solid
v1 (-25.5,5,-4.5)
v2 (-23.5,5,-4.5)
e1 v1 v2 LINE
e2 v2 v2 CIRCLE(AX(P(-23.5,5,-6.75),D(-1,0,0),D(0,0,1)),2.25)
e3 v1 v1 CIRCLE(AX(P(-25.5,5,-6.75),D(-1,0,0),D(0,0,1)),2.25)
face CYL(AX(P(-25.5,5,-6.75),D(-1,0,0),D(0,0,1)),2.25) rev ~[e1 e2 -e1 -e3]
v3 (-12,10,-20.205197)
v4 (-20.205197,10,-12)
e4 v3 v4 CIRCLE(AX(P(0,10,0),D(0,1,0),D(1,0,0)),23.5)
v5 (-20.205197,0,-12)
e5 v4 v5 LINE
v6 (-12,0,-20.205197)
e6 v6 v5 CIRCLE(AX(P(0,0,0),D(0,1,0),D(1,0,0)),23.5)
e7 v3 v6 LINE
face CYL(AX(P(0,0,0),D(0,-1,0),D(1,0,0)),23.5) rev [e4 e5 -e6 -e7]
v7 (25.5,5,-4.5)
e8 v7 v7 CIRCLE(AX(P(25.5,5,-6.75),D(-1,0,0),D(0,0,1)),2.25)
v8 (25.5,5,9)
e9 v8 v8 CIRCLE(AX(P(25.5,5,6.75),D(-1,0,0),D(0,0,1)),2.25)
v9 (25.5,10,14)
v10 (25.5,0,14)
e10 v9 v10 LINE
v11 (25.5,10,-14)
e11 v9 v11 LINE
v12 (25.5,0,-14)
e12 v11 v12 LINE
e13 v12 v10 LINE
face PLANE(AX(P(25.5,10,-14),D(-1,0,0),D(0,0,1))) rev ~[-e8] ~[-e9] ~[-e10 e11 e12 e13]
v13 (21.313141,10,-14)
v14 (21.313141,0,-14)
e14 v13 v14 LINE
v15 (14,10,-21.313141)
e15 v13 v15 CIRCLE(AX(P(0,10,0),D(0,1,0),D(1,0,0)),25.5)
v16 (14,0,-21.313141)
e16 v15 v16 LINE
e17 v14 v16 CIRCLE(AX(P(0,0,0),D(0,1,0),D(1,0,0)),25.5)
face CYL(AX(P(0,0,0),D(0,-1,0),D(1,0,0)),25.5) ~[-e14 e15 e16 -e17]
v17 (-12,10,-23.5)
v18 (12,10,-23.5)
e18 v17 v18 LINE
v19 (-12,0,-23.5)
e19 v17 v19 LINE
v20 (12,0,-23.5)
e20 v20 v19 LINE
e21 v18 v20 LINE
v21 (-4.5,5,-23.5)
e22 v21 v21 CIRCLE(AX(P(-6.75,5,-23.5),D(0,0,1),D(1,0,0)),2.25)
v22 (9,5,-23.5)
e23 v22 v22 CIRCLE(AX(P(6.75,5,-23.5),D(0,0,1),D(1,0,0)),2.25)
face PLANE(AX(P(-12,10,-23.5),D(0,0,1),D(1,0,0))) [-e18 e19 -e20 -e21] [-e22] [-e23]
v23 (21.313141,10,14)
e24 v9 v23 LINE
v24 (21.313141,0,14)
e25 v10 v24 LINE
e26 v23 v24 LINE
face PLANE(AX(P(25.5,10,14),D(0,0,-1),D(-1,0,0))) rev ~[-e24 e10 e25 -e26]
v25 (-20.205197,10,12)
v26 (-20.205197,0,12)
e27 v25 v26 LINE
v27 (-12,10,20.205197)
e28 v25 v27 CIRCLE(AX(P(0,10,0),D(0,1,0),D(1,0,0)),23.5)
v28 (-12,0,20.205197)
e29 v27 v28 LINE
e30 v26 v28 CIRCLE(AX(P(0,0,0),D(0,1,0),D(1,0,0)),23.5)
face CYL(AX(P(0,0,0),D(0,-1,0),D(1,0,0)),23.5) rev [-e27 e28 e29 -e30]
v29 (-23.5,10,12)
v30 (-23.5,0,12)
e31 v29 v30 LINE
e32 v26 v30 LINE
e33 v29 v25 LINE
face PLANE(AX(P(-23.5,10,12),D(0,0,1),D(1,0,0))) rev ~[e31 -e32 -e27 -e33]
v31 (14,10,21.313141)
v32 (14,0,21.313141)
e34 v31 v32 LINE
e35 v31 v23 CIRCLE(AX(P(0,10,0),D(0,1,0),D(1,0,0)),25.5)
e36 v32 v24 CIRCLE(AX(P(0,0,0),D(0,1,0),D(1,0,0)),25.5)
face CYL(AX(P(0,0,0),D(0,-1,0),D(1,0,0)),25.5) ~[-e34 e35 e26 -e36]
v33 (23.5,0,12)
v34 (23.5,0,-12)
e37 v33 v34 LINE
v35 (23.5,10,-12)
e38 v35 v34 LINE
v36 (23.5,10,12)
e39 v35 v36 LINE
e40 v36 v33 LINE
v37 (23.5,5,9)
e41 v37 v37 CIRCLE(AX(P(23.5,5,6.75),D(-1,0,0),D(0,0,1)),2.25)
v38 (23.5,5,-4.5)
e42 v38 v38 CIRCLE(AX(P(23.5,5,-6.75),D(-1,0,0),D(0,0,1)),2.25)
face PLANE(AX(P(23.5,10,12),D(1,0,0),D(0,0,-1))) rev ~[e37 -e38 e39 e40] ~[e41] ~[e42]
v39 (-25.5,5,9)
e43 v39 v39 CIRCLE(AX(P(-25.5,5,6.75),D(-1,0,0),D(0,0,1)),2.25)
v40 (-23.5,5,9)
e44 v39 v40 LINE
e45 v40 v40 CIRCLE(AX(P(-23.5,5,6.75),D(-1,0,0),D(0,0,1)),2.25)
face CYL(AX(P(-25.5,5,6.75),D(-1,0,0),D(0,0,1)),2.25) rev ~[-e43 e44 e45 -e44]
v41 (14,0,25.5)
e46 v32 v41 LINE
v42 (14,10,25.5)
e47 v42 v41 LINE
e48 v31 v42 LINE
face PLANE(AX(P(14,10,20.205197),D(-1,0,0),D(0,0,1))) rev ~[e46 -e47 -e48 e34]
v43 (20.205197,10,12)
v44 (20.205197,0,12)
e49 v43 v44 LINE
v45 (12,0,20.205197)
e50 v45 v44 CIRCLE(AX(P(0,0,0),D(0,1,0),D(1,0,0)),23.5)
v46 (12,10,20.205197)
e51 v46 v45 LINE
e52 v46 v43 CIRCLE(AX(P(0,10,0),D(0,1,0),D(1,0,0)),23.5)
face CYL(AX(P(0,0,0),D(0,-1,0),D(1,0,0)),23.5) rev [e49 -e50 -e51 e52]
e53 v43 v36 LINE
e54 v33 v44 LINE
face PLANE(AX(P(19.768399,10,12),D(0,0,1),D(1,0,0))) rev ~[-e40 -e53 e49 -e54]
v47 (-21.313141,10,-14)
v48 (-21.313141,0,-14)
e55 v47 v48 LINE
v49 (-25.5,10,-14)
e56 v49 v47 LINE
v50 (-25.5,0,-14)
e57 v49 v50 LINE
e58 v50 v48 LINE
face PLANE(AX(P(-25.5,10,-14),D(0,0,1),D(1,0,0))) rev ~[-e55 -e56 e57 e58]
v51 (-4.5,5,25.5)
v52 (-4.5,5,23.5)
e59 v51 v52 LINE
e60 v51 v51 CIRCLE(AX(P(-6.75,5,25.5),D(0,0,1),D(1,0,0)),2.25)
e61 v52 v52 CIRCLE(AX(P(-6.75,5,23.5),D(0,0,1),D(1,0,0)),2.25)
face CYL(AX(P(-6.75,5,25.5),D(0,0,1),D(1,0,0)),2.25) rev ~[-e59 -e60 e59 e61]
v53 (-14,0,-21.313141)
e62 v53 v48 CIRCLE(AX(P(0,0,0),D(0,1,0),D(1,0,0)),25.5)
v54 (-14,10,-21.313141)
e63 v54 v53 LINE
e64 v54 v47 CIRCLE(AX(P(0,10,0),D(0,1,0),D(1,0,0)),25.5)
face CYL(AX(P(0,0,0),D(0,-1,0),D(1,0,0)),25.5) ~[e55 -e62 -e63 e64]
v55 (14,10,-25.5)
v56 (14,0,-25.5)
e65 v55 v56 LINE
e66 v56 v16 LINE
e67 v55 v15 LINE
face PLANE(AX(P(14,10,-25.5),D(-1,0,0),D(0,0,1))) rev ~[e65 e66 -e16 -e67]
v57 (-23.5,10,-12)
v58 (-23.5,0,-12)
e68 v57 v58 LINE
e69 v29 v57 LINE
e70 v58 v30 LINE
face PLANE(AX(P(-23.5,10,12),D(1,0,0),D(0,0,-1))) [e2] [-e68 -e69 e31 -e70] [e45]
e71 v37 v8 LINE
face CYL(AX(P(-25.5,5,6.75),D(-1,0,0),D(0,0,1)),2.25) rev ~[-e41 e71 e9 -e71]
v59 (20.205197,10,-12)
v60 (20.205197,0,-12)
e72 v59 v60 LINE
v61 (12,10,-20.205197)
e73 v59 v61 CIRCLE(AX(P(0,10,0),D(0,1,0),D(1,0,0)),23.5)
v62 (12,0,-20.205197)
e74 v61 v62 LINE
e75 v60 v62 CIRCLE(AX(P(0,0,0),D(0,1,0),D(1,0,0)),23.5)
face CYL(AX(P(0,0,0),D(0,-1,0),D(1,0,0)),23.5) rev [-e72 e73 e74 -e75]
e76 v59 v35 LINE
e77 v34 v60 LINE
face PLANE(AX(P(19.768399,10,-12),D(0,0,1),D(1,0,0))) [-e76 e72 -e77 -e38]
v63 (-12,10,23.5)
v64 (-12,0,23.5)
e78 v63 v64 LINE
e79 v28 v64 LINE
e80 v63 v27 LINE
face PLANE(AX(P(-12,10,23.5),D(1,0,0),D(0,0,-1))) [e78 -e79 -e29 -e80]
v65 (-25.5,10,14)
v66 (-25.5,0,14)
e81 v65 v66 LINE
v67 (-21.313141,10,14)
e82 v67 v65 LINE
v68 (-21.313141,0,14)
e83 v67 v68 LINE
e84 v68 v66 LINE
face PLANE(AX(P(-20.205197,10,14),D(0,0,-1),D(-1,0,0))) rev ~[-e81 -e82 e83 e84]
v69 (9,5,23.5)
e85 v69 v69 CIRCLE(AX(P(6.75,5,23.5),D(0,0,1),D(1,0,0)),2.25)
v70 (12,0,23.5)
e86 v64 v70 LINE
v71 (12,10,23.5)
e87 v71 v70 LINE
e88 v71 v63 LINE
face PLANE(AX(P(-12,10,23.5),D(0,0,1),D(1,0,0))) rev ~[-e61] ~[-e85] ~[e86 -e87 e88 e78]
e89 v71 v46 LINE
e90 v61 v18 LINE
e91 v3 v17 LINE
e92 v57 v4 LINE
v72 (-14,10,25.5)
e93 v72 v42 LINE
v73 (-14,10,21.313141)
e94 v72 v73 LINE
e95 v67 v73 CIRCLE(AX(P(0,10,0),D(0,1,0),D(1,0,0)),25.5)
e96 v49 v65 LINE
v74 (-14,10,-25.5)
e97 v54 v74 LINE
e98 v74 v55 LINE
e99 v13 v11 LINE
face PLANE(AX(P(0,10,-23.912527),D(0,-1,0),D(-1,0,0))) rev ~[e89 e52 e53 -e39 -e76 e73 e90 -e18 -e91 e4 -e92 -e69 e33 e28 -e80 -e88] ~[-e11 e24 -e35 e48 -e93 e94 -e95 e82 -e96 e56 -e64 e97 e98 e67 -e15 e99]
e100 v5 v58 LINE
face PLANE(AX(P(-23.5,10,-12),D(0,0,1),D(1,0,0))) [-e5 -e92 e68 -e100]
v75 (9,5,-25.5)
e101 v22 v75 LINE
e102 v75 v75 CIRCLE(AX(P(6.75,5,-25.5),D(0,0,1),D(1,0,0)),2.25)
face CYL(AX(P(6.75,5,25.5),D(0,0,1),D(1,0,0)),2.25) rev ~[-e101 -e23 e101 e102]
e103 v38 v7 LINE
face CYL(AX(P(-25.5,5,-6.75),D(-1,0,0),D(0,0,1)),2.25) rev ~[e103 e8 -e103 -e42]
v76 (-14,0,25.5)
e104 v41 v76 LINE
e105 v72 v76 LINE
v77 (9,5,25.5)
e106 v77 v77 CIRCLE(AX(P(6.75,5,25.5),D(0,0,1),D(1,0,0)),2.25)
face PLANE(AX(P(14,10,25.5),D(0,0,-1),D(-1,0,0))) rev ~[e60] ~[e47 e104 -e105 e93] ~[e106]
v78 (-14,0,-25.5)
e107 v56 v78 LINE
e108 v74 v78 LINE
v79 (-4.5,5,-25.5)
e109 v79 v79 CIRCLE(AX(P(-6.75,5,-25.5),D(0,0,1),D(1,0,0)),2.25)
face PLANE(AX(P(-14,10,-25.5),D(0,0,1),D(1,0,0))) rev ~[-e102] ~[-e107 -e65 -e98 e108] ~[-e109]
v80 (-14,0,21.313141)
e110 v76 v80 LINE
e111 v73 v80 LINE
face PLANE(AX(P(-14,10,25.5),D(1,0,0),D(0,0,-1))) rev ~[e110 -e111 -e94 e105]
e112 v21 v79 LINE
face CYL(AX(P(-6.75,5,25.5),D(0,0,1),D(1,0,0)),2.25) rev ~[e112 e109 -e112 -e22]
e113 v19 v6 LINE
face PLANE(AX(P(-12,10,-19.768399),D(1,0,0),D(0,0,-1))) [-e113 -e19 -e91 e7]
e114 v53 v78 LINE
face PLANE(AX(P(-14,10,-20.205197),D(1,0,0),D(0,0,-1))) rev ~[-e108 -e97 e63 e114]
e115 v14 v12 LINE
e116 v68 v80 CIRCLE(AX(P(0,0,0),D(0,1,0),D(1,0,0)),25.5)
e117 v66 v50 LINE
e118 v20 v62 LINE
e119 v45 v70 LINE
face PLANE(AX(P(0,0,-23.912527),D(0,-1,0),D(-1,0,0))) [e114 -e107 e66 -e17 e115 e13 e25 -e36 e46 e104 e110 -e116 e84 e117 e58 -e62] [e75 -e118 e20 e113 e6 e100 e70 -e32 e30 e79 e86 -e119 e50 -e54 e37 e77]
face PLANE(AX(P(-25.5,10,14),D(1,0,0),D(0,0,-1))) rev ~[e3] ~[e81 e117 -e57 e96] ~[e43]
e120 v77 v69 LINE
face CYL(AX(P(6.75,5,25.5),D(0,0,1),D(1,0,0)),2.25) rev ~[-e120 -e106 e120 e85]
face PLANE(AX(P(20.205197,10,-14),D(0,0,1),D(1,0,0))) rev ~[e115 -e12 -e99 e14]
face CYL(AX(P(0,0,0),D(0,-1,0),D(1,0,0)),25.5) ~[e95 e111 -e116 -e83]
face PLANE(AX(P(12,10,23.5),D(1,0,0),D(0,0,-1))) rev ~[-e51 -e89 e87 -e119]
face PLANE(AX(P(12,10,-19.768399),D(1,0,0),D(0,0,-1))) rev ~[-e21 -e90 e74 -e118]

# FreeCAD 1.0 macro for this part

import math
import FreeCAD as App
import Part
import Sketcher
from FreeCAD import Vector


def add_polygon(sketch, points):
    """Adds a closed chain of lines whose ends are joined by coincident constraints."""
    first, n = sketch.GeometryCount, len(points)
    for a, b in zip(points, points[1:] + points[:1]):
        sketch.addGeometry(Part.LineSegment(App.Vector(*a, 0), App.Vector(*b, 0)), False)
    for i in range(n):
        sketch.addConstraint(Sketcher.Constraint("Coincident", first + i, 2, first + (i + 1) % n, 1))

doc = App.newDocument("Part")
params = doc.addObject("Spreadsheet::Sheet", "Params")
for row, (alias, value) in enumerate([
    ("sketch1_diameter", "51 mm"),
    ("sketch1_diameter2", "47 mm"),
    ("pad1_length", "10 mm"),
    ("sketch2_width", "28 mm"),
    ("pad2_length", "10 mm"),
    ("sketch3_diameter", "4.5 mm"),
    ("sketch4_diameter", "4.5 mm"),
    ("sketch5_width", "24 mm"),
], start=1):
    params.set(f"A{row}", alias)
    params.set(f"B{row}", "=" + value)
    params.setAlias(f"B{row}", alias)

body = doc.addObject("PartDesign::Body", "Body")

# Sketch on XZ plane
sketch1 = doc.addObject("Sketcher::SketchObject", "Sketch")
body.addObject(sketch1)
sketch1.AttachmentSupport = (doc.XZ_Plane, [""])
sketch1.MapMode = "FlatFace"
sketch1.addGeometry(Part.Circle(Vector(0, 0, 0), Vector(0, 0, 1), 25.5), False)
sketch1.addGeometry(Part.Circle(Vector(0, 0, 0), Vector(0, 0, 1), 23.5), False)
sketch1.addConstraint(Sketcher.Constraint("Coincident", 0, 3, -1, 1))
sketch1.addConstraint(Sketcher.Constraint("Coincident", 1, 3, -1, 1))
sketch1.addConstraint(Sketcher.Constraint("Diameter", 0, 51.0))
sketch1.addConstraint(Sketcher.Constraint("Diameter", 1, 47.0))
sketch1.setExpression("Constraints[2]", "Params.sketch1_diameter")
sketch1.setExpression("Constraints[3]", "Params.sketch1_diameter2")
pad1 = doc.addObject("PartDesign::Pad", "Pad")
body.addObject(pad1)
pad1.Profile = sketch1
pad1.setExpression("Length", "Params.pad1_length")
pad1.Reversed = True

# Sketch on XZ plane
sketch2 = doc.addObject("Sketcher::SketchObject", "Sketch001")
body.addObject(sketch2)
sketch2.AttachmentSupport = (doc.XZ_Plane, [""])
sketch2.MapMode = "FlatFace"
sketch2.AttachmentOffset = App.Placement(Vector(0, 0, -10), App.Rotation())
sketch2.addGeometry(Part.LineSegment(Vector(14, -25.5, 0), Vector(-14, -25.5, 0)), False)
sketch2.addGeometry(Part.LineSegment(Vector(-14, -25.5, 0), Vector(-14, -20.205197, 0)), False)
sketch2.addGeometry(Part.ArcOfCircle(Part.Circle(Vector(0, 0, 0), Vector(0, 0, 1), 24.581497), math.radians(-124.717741), math.radians(-55.282259)), False)
sketch2.addGeometry(Part.LineSegment(Vector(14, -20.205197, 0), Vector(14, -25.5, 0)), False)
sketch2.addGeometry(Part.LineSegment(Vector(25.5, -14, 0), Vector(20.205197, -14, 0)), False)
sketch2.addGeometry(Part.ArcOfCircle(Part.Circle(Vector(0, 0, 0), Vector(0, 0, 1), 24.581497), math.radians(-34.717741), math.radians(34.717741)), False)
sketch2.addGeometry(Part.LineSegment(Vector(20.205197, 14, 0), Vector(25.5, 14, 0)), False)
sketch2.addGeometry(Part.LineSegment(Vector(25.5, 14, 0), Vector(25.5, -14, 0)), False)
sketch2.addGeometry(Part.LineSegment(Vector(14, 25.5, 0), Vector(14, 20.205197, 0)), False)
sketch2.addGeometry(Part.ArcOfCircle(Part.Circle(Vector(0, 0, 0), Vector(0, 0, 1), 24.581497), math.radians(55.282259), math.radians(124.717741)), False)
sketch2.addGeometry(Part.LineSegment(Vector(-14, 20.205197, 0), Vector(-14, 25.5, 0)), False)
sketch2.addGeometry(Part.LineSegment(Vector(-14, 25.5, 0), Vector(14, 25.5, 0)), False)
sketch2.addGeometry(Part.LineSegment(Vector(-25.5, 14, 0), Vector(-20.205197, 14, 0)), False)
sketch2.addGeometry(Part.ArcOfCircle(Part.Circle(Vector(0, 0, 0), Vector(0, 0, 1), 24.581497), math.radians(145.282259), math.radians(214.717741)), False)
sketch2.addGeometry(Part.LineSegment(Vector(-20.205197, -14, 0), Vector(-25.5, -14, 0)), False)
sketch2.addGeometry(Part.LineSegment(Vector(-25.5, -14, 0), Vector(-25.5, 14, 0)), False)
sketch2.addConstraint(Sketcher.Constraint("Coincident", 0, 2, 1, 1))
sketch2.addConstraint(Sketcher.Constraint("Coincident", 1, 2, 2, 1))
sketch2.addConstraint(Sketcher.Constraint("Coincident", 2, 2, 3, 1))
sketch2.addConstraint(Sketcher.Constraint("Coincident", 3, 2, 0, 1))
sketch2.addConstraint(Sketcher.Constraint("Coincident", 4, 2, 5, 1))
sketch2.addConstraint(Sketcher.Constraint("Coincident", 5, 2, 6, 1))
sketch2.addConstraint(Sketcher.Constraint("Coincident", 6, 2, 7, 1))
sketch2.addConstraint(Sketcher.Constraint("Coincident", 7, 2, 4, 1))
sketch2.addConstraint(Sketcher.Constraint("Coincident", 8, 2, 9, 1))
sketch2.addConstraint(Sketcher.Constraint("Coincident", 9, 2, 10, 1))
sketch2.addConstraint(Sketcher.Constraint("Coincident", 10, 2, 11, 1))
sketch2.addConstraint(Sketcher.Constraint("Coincident", 11, 2, 8, 1))
sketch2.addConstraint(Sketcher.Constraint("Coincident", 12, 2, 13, 1))
sketch2.addConstraint(Sketcher.Constraint("Coincident", 13, 2, 14, 1))
sketch2.addConstraint(Sketcher.Constraint("Coincident", 14, 2, 15, 1))
sketch2.addConstraint(Sketcher.Constraint("Coincident", 15, 2, 12, 1))
sketch2.addConstraint(Sketcher.Constraint("Horizontal", 0))
sketch2.addConstraint(Sketcher.Constraint("Vertical", 1))
sketch2.addConstraint(Sketcher.Constraint("Vertical", 3))
sketch2.addConstraint(Sketcher.Constraint("Horizontal", 4))
sketch2.addConstraint(Sketcher.Constraint("Horizontal", 6))
sketch2.addConstraint(Sketcher.Constraint("Vertical", 7))
sketch2.addConstraint(Sketcher.Constraint("Vertical", 8))
sketch2.addConstraint(Sketcher.Constraint("Vertical", 10))
sketch2.addConstraint(Sketcher.Constraint("Horizontal", 11))
sketch2.addConstraint(Sketcher.Constraint("Horizontal", 12))
sketch2.addConstraint(Sketcher.Constraint("Horizontal", 14))
sketch2.addConstraint(Sketcher.Constraint("Vertical", 15))
sketch2.addConstraint(Sketcher.Constraint("Coincident", 2, 3, -1, 1))
sketch2.addConstraint(Sketcher.Constraint("Coincident", 5, 3, -1, 1))
sketch2.addConstraint(Sketcher.Constraint("Coincident", 9, 3, -1, 1))
sketch2.addConstraint(Sketcher.Constraint("Coincident", 13, 3, -1, 1))
sketch2.addConstraint(Sketcher.Constraint("Equal", 2, 5))
sketch2.addConstraint(Sketcher.Constraint("Equal", 5, 9))
sketch2.addConstraint(Sketcher.Constraint("Equal", 9, 13))
sketch2.addConstraint(Sketcher.Constraint("Symmetric", 3, 2, 10, 2, -1, 1))
sketch2.addConstraint(Sketcher.Constraint("Symmetric", 6, 2, 14, 2, -1, 1))
sketch2.addConstraint(Sketcher.Constraint("Horizontal", 1, 2, 2, 2))
sketch2.addConstraint(Sketcher.Constraint("Horizontal", 8, 2, 9, 2))
sketch2.addConstraint(Sketcher.Constraint("Horizontal", 6, 2, 12, 2))
sketch2.addConstraint(Sketcher.Constraint("Horizontal", 7, 2, 13, 2))
sketch2.addConstraint(Sketcher.Constraint("Equal", 14, 1))
sketch2.addConstraint(Sketcher.Constraint("Equal", 11, 7))
sketch2.addConstraint(Sketcher.Constraint("DistanceX", 0, 2, 0, 1, 28.0))
sketch2.addConstraint(Sketcher.Constraint("DistanceY", 0, 2, -1, 1, 25.5))
sketch2.addConstraint(Sketcher.Constraint("Radius", 2, 24.581497))
sketch2.setExpression("Constraints[43]", "Params.sketch2_width")
pad2 = doc.addObject("PartDesign::Pad", "Pad001")
body.addObject(pad2)
pad2.Profile = sketch2
pad2.setExpression("Length", "Params.pad2_length")

# Sketch on XY plane
sketch3 = doc.addObject("Sketcher::SketchObject", "Sketch002")
body.addObject(sketch3)
sketch3.AttachmentSupport = (doc.XY_Plane, [""])
sketch3.MapMode = "FlatFace"
sketch3.AttachmentOffset = App.Placement(Vector(0, 0, 25.5), App.Rotation())
sketch3.addGeometry(Part.Circle(Vector(-6.75, 5, 0), Vector(0, 0, 1), 2.25), False)
sketch3.addGeometry(Part.Circle(Vector(6.75, 5, 0), Vector(0, 0, 1), 2.25), False)
sketch3.addConstraint(Sketcher.Constraint("Equal", 0, 1))
sketch3.addConstraint(Sketcher.Constraint("Symmetric", 0, 3, 1, 3, -2))
sketch3.addConstraint(Sketcher.Constraint("Diameter", 0, 4.5))
sketch3.addConstraint(Sketcher.Constraint("DistanceY", -1, 1, 0, 3, 5.0))
sketch3.addConstraint(Sketcher.Constraint("DistanceX", 0, 3, 1, 3, 13.5))
sketch3.setExpression("Constraints[2]", "Params.sketch3_diameter")
pocket1 = doc.addObject("PartDesign::Pocket", "Pocket")
body.addObject(pocket1)
pocket1.Profile = sketch3
pocket1.Type = "ThroughAll"

# Sketch on YZ plane
sketch4 = doc.addObject("Sketcher::SketchObject", "Sketch003")
body.addObject(sketch4)
sketch4.AttachmentSupport = (doc.YZ_Plane, [""])
sketch4.MapMode = "FlatFace"
sketch4.AttachmentOffset = App.Placement(Vector(0, 0, -25.5), App.Rotation())
sketch4.addGeometry(Part.Circle(Vector(5, -6.75, 0), Vector(0, 0, 1), 2.25), False)
sketch4.addGeometry(Part.Circle(Vector(5, 6.75, 0), Vector(0, 0, 1), 2.25), False)
sketch4.addConstraint(Sketcher.Constraint("Equal", 0, 1))
sketch4.addConstraint(Sketcher.Constraint("Symmetric", 0, 3, 1, 3, -1))
sketch4.addConstraint(Sketcher.Constraint("Diameter", 0, 4.5))
sketch4.addConstraint(Sketcher.Constraint("DistanceX", -1, 1, 0, 3, 5.0))
sketch4.addConstraint(Sketcher.Constraint("DistanceY", 0, 3, 1, 3, 13.5))
sketch4.setExpression("Constraints[2]", "Params.sketch4_diameter")
pocket2 = doc.addObject("PartDesign::Pocket", "Pocket001")
body.addObject(pocket2)
pocket2.Profile = sketch4
pocket2.Type = "ThroughAll"
pocket2.Reversed = True

# Sketch on XZ plane
sketch5 = doc.addObject("Sketcher::SketchObject", "Sketch004")
body.addObject(sketch5)
sketch5.AttachmentSupport = (doc.XZ_Plane, [""])
sketch5.MapMode = "FlatFace"
sketch5.AttachmentOffset = App.Placement(Vector(0, 0, -10), App.Rotation())
add_polygon(sketch5, [(-12, -23.5), (-12, -19.768399), (12, -19.768399), (12, -23.5)])  # lines 0-3
add_polygon(sketch5, [(19.768399, -12), (19.768399, 12), (23.5, 12), (23.5, -12)])  # lines 4-7
add_polygon(sketch5, [(-12, 19.768399), (-12, 23.5), (12, 23.5), (12, 19.768399)])  # lines 8-11
add_polygon(sketch5, [(-23.5, -12), (-23.5, 12), (-19.768399, 12), (-19.768399, -12)])  # lines 12-15
sketch5.addConstraint(Sketcher.Constraint("Vertical", 0))
sketch5.addConstraint(Sketcher.Constraint("Horizontal", 1))
sketch5.addConstraint(Sketcher.Constraint("Vertical", 2))
sketch5.addConstraint(Sketcher.Constraint("Horizontal", 3))
sketch5.addConstraint(Sketcher.Constraint("Vertical", 4))
sketch5.addConstraint(Sketcher.Constraint("Horizontal", 5))
sketch5.addConstraint(Sketcher.Constraint("Vertical", 6))
sketch5.addConstraint(Sketcher.Constraint("Horizontal", 7))
sketch5.addConstraint(Sketcher.Constraint("Vertical", 8))
sketch5.addConstraint(Sketcher.Constraint("Horizontal", 9))
sketch5.addConstraint(Sketcher.Constraint("Vertical", 10))
sketch5.addConstraint(Sketcher.Constraint("Horizontal", 11))
sketch5.addConstraint(Sketcher.Constraint("Vertical", 12))
sketch5.addConstraint(Sketcher.Constraint("Horizontal", 13))
sketch5.addConstraint(Sketcher.Constraint("Vertical", 14))
sketch5.addConstraint(Sketcher.Constraint("Horizontal", 15))
sketch5.addConstraint(Sketcher.Constraint("Symmetric", 2, 2, 8, 2, -1, 1))
sketch5.addConstraint(Sketcher.Constraint("Symmetric", 0, 2, 10, 2, -1, 1))
sketch5.addConstraint(Sketcher.Constraint("Symmetric", 6, 2, 12, 2, -1, 1))
sketch5.addConstraint(Sketcher.Constraint("Symmetric", 4, 2, 14, 2, -1, 1))
sketch5.addConstraint(Sketcher.Constraint("Horizontal", 5, 2, 12, 2))
sketch5.addConstraint(Sketcher.Constraint("Vertical", 3, 2, 8, 2))
sketch5.addConstraint(Sketcher.Constraint("Equal", 15, 0))
sketch5.addConstraint(Sketcher.Constraint("Equal", 11, 4))
sketch5.addConstraint(Sketcher.Constraint("DistanceX", 1, 1, 1, 2, 24.0))
sketch5.addConstraint(Sketcher.Constraint("DistanceY", 3, 2, 8, 2, 47.0))
sketch5.addConstraint(Sketcher.Constraint("DistanceX", -1, 1, 5, 2, 23.5))
sketch5.addConstraint(Sketcher.Constraint("DistanceX", 5, 1, 5, 2, 3.731601))
sketch5.setExpression("Constraints[40]", "Params.sketch5_width")
pocket3 = doc.addObject("PartDesign::Pocket", "Pocket002")
body.addObject(pocket3)
pocket3.Profile = sketch5
pocket3.Type = "ThroughAll"
pocket3.Reversed = True

doc.recompute()
